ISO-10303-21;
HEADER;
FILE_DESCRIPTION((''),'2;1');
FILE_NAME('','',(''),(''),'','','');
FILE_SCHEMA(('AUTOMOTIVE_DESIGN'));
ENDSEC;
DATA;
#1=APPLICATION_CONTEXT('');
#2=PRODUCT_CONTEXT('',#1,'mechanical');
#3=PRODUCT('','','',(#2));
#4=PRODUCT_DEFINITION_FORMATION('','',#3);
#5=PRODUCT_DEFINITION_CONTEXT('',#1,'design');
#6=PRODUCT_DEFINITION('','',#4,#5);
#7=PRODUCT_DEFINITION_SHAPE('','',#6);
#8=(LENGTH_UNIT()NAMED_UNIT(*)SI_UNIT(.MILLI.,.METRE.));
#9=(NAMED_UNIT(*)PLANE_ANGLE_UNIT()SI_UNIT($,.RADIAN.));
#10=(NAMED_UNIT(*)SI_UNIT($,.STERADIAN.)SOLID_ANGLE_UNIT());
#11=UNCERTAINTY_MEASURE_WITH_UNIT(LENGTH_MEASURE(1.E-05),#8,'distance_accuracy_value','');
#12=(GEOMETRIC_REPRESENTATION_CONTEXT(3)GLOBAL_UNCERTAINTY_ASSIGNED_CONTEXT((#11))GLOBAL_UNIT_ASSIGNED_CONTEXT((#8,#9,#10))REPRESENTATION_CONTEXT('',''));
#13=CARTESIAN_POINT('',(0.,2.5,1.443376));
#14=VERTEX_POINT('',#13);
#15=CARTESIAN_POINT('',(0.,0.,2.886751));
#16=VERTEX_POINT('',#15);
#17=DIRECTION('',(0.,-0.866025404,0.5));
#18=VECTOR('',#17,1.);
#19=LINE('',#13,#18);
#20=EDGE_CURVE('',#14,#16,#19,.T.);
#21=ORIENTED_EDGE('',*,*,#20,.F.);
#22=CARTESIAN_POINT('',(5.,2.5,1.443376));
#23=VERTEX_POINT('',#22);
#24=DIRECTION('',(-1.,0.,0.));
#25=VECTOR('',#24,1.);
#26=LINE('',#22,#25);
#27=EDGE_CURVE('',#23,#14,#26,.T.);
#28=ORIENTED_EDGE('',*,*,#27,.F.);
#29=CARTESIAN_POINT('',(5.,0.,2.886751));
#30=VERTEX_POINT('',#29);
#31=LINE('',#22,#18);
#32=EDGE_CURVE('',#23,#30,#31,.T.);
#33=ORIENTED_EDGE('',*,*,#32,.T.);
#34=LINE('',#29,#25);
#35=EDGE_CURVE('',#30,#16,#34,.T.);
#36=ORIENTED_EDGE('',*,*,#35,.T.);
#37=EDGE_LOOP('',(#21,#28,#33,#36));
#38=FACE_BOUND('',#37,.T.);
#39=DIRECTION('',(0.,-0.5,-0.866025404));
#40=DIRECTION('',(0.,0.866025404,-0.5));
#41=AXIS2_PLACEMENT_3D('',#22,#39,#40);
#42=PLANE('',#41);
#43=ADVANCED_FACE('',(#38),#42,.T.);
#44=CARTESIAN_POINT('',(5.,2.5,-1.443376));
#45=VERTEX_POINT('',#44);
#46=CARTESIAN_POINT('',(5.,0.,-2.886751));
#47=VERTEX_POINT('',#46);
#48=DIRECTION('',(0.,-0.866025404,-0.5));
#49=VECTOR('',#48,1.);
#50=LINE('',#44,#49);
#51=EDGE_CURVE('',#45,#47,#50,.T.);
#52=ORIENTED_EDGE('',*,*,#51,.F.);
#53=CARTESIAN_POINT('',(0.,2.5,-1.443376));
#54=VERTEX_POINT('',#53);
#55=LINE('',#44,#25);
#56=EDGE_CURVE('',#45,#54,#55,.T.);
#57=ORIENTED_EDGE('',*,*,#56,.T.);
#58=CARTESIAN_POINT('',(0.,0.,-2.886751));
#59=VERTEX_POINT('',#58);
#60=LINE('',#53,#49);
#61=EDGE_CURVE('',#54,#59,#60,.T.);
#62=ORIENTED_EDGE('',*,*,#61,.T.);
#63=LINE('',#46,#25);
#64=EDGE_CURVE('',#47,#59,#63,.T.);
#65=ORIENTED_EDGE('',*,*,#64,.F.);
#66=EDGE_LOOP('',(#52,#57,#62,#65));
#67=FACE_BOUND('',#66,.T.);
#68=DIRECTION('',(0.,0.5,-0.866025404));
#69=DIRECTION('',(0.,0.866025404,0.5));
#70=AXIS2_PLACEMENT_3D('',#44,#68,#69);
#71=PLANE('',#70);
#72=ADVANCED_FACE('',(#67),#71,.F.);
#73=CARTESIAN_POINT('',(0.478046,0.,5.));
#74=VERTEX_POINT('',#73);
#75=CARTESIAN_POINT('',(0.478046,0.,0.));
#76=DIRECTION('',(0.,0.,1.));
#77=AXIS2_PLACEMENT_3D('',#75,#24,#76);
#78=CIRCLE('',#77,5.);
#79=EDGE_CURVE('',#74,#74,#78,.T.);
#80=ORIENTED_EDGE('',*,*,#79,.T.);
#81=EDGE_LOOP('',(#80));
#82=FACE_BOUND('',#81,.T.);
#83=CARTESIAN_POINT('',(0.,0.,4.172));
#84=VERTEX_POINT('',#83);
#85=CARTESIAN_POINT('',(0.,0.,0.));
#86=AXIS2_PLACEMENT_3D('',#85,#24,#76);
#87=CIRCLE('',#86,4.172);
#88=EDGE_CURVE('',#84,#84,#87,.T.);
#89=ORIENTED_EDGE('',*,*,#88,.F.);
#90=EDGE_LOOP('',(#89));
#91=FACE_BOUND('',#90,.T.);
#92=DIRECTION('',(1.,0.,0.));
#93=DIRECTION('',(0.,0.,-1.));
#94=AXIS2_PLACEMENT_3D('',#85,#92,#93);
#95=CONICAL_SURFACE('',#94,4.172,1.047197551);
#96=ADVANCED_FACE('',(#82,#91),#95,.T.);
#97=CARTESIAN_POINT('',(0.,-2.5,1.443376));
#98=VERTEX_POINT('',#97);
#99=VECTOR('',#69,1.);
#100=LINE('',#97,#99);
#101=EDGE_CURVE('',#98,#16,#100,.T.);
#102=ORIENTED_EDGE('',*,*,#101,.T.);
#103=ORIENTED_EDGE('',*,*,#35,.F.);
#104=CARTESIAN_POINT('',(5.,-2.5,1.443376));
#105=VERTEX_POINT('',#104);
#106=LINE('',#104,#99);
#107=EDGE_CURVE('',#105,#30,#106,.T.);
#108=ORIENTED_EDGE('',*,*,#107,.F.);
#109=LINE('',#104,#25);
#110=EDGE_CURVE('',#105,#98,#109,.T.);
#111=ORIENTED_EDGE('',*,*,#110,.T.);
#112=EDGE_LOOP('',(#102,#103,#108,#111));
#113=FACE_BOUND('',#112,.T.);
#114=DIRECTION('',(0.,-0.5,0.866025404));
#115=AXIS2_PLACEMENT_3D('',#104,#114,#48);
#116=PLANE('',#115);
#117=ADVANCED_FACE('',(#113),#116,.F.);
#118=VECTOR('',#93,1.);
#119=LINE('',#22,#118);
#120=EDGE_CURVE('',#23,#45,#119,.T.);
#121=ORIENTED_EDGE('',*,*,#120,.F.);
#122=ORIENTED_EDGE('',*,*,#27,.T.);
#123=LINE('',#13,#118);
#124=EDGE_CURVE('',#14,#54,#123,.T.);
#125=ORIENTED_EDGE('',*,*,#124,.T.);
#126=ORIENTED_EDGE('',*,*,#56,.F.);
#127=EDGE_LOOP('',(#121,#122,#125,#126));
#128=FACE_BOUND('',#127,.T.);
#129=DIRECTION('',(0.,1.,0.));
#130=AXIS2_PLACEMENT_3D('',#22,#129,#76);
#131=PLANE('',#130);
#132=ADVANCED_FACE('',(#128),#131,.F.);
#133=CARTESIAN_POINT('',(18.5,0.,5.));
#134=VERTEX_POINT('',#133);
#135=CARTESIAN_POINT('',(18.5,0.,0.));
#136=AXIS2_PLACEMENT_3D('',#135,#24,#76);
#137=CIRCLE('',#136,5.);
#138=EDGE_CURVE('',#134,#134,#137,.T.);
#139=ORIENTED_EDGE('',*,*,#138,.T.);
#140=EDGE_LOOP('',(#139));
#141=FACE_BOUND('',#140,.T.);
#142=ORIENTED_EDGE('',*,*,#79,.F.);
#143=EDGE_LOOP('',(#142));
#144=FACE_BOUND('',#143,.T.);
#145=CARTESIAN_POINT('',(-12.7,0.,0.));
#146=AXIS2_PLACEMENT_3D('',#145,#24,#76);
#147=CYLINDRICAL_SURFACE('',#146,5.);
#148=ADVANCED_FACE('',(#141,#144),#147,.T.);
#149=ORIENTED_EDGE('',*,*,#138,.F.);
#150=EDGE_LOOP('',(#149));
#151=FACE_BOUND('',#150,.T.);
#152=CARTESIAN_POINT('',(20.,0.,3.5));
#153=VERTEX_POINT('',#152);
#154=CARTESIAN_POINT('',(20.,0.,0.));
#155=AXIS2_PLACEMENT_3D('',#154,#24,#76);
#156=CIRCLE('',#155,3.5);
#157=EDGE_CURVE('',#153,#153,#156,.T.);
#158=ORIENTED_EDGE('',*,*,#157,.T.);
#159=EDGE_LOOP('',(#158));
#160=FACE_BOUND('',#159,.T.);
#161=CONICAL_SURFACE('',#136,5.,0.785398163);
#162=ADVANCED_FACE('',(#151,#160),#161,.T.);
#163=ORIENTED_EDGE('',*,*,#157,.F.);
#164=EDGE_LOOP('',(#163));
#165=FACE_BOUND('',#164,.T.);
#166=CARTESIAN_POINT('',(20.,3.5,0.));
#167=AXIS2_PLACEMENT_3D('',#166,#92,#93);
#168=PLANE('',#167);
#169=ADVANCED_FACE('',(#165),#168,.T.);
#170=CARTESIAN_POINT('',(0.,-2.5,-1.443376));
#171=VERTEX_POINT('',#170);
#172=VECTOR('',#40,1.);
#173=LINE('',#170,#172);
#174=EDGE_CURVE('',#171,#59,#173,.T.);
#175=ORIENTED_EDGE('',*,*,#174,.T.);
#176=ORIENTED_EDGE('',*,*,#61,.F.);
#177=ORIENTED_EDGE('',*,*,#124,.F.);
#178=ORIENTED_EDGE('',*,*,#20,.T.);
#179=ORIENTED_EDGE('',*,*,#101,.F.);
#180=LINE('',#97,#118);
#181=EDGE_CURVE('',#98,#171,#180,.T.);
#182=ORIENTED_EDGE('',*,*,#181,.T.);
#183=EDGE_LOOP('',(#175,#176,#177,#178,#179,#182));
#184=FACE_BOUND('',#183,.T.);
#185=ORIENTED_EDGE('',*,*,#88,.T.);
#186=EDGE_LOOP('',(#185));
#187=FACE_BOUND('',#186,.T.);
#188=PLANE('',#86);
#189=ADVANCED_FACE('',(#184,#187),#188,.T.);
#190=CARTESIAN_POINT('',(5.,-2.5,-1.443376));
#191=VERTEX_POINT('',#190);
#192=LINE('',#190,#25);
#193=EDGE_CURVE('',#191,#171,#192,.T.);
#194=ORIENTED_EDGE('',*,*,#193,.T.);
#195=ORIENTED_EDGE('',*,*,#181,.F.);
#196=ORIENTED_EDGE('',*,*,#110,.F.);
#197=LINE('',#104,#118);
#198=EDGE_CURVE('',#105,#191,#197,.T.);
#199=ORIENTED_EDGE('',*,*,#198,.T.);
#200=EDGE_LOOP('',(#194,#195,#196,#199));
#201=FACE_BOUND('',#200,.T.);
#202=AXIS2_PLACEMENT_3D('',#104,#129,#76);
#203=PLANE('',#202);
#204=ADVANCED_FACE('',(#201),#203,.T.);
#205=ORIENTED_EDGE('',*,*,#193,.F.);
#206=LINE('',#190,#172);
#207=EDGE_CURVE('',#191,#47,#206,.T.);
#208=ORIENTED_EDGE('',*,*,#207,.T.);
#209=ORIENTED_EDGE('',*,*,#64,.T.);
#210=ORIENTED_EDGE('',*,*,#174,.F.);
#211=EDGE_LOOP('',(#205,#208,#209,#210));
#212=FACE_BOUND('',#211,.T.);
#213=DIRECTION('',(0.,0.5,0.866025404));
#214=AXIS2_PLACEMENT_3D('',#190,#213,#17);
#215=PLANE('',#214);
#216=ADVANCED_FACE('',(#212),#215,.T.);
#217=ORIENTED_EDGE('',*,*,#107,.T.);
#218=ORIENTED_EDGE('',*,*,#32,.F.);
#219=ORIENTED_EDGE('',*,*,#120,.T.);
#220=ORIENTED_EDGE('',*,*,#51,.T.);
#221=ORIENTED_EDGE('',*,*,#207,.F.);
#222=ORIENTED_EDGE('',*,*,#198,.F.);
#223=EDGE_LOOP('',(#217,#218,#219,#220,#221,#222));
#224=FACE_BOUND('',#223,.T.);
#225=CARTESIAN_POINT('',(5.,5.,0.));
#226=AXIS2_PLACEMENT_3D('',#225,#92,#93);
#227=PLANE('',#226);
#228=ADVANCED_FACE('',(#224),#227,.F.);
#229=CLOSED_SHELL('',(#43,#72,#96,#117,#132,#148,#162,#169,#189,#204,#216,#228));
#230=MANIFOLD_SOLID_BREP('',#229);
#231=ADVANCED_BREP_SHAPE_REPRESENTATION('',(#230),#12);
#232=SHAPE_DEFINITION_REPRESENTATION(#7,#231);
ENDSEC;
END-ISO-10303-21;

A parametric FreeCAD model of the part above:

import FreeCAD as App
import Part
import Sketcher

V = App.Vector
Q = App.Units.Quantity


def add_polygon(sketch, points):
    """Adds a closed chain of lines whose ends are joined by coincident constraints."""
    first, n = sketch.GeometryCount, len(points)
    for a, b in zip(points, points[1:] + points[:1]):
        sketch.addGeometry(Part.LineSegment(App.Vector(*a, 0), App.Vector(*b, 0)), False)
    for i in range(n):
        sketch.addConstraint(Sketcher.Constraint("Coincident", first + i, 2, first + (i + 1) % n, 1))

doc = App.newDocument("Part")
body = doc.addObject("PartDesign::Body", "Body")

# Sketch on XY plane
sketch1 = doc.addObject("Sketcher::SketchObject", "Sketch")
body.addObject(sketch1)
sketch1.AttachmentSupport = (doc.XY_Plane, [""])
sketch1.MapMode = "FlatFace"
add_polygon(sketch1, [(0, 4.2), (0, 0), (20, 0), (20, 3.5), (18.5, 5), (0.5, 5)])  # lines 0-5
sketch1.addConstraint([
    Sketcher.Constraint("Vertical", 0),
    Sketcher.Constraint("Horizontal", 1),
    Sketcher.Constraint("Vertical", 2),
    Sketcher.Constraint("Horizontal", 4),
    Sketcher.Constraint("Coincident", 0, 2, -1, 1),
    Sketcher.Constraint("DistanceX", 1, 1, 1, 2, Q("20 mm")),
    Sketcher.Constraint("Angle", 3, Q("135 deg")),
    Sketcher.Constraint("Angle", 5, Q("-120 deg")),
    Sketcher.Constraint("DistanceY", 2, 1, 2, 2, Q("3.5 mm")),
    Sketcher.Constraint("DistanceY", -1, 1, 3, 2, Q("5 mm")),
    Sketcher.Constraint("DistanceY", 0, 2, 0, 1, Q("4.172 mm")),
])
revolution = doc.addObject("PartDesign::Revolution", "Revolution")
body.addObject(revolution)
revolution.Profile = sketch1
revolution.ReferenceAxis = (sketch1, ["H_Axis"])
revolution.Angle = 360

# Sketch on YZ plane
sketch2 = doc.addObject("Sketcher::SketchObject", "Sketch001")
body.addObject(sketch2)
sketch2.AttachmentSupport = (doc.YZ_Plane, [""])
sketch2.MapMode = "FlatFace"
add_polygon(sketch2, [(2.5, 1.4), (2.5, -1.4), (0, -2.9), (-2.5, -1.4), (-2.5, 1.4), (0, 2.9)])  # lines 0-5
sketch2.addConstraint([
    Sketcher.Constraint("Vertical", 0),
    Sketcher.Constraint("Vertical", 3),
    Sketcher.Constraint("Symmetric", 0, 2, 3, 2, -1, 1),
    Sketcher.Constraint("Symmetric", 1, 2, 4, 2, -1, 1),
    Sketcher.Constraint("PointOnObject", 1, 2, -2),
    Sketcher.Constraint("Parallel", 2, 5),
    Sketcher.Constraint("Horizontal", 0, 2, 2, 2),
    Sketcher.Constraint("Angle", 1, Q("-150 deg")),
    Sketcher.Constraint("DistanceX", 2, 2, 0, 2, Q("5 mm")),
    Sketcher.Constraint("DistanceY", 0, 2, 0, 1, Q("2.886751 mm")),
])
pocket1 = doc.addObject("PartDesign::Pocket", "Pocket")
body.addObject(pocket1)
pocket1.Profile = sketch2
pocket1.Length = 5
pocket1.Reversed = True

doc.recompute()
